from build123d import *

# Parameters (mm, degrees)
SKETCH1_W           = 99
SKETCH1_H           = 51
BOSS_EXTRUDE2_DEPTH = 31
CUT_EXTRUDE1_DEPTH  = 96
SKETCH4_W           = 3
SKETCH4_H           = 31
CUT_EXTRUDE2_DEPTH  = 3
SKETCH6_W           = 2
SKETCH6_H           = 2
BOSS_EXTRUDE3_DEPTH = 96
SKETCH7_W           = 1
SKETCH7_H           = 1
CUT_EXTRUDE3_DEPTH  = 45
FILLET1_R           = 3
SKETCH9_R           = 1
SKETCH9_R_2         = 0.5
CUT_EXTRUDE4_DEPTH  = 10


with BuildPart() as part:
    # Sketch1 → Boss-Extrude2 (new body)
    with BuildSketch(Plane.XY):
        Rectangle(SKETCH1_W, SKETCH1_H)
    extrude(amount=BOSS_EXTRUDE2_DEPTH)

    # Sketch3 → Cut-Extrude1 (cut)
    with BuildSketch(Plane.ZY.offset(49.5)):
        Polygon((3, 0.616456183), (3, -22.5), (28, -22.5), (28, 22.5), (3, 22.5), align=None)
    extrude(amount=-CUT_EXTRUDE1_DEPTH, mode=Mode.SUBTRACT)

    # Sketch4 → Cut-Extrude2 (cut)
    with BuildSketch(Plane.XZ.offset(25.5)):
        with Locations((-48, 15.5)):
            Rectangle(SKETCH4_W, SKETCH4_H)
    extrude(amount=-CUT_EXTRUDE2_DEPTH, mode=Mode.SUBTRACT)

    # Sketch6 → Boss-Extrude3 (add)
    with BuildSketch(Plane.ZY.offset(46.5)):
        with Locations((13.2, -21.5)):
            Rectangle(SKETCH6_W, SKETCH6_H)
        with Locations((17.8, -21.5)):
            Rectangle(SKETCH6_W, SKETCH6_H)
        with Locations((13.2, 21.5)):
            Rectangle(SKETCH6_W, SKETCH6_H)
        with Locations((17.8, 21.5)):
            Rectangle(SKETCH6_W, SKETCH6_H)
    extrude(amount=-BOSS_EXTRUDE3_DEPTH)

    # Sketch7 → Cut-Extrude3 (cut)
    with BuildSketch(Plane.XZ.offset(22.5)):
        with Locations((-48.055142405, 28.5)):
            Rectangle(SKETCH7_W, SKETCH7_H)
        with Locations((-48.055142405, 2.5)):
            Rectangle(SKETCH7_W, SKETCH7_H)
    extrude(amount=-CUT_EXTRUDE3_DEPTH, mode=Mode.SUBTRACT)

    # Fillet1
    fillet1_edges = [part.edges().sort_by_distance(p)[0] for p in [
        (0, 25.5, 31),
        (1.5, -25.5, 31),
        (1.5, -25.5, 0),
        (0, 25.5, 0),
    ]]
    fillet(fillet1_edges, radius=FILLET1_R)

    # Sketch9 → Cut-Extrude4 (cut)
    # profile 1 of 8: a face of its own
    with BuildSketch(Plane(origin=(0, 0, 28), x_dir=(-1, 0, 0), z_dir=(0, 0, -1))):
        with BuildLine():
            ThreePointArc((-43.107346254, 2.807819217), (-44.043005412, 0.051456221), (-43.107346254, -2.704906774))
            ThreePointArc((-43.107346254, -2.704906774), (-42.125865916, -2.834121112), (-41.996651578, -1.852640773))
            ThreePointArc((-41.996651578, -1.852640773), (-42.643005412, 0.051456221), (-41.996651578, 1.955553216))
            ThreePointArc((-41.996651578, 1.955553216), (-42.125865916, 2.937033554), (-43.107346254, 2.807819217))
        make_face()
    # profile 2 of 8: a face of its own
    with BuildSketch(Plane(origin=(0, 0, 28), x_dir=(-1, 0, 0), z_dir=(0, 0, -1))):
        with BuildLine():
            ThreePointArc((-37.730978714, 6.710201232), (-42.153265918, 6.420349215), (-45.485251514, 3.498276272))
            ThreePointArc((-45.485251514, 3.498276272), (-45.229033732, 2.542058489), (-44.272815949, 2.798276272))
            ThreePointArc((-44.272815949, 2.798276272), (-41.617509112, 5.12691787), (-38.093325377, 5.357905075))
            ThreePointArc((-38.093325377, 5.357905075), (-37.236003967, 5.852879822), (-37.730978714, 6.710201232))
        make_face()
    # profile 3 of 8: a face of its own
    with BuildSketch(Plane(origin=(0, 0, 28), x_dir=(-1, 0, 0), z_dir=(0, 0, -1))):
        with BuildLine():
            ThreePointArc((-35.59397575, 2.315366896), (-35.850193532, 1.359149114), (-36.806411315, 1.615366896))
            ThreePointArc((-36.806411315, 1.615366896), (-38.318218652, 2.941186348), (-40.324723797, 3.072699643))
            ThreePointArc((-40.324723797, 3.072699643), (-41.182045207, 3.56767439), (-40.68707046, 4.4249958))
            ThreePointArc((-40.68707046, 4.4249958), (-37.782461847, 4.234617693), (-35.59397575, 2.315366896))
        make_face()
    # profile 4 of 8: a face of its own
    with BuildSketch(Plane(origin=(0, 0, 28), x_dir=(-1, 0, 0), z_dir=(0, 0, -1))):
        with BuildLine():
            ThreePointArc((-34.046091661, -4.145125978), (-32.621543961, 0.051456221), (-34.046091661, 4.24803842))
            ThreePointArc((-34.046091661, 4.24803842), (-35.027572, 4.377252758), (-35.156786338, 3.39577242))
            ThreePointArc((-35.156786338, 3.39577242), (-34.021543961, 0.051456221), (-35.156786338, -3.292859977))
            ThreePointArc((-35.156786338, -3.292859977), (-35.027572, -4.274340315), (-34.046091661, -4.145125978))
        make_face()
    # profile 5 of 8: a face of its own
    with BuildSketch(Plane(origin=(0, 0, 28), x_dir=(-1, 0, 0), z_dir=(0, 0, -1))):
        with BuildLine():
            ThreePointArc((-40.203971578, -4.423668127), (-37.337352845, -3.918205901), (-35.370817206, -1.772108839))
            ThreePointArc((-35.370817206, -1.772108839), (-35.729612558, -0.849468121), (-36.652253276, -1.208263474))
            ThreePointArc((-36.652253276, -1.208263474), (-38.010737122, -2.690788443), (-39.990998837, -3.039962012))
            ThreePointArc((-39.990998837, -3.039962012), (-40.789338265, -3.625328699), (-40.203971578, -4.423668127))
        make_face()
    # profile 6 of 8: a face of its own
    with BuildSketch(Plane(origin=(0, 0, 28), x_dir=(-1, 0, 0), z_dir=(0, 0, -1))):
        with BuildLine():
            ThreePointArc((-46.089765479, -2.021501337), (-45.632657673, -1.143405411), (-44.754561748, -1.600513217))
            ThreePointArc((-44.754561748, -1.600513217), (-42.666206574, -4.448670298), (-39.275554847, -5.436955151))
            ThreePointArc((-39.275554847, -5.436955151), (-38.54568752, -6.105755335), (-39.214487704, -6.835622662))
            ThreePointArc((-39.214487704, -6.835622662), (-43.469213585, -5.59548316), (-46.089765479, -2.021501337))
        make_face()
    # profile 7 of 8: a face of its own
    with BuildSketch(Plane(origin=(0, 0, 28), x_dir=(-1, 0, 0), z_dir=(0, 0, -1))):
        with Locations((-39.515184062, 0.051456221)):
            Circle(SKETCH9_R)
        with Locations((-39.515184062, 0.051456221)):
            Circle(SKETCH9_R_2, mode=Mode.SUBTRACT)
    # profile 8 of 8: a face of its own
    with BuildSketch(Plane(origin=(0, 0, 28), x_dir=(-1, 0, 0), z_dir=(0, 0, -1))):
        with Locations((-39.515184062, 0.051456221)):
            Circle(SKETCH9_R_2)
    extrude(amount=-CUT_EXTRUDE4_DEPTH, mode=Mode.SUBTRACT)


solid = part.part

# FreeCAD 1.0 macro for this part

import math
import FreeCAD as App
import Part
import Sketcher
from FreeCAD import Vector
Q = App.Units.Quantity


def edges_at(feature, points):
    """Names of the edges that pass closest to the given points."""
    edges = feature.Shape.Edges
    near = lambda p: min(range(len(edges)), key=lambda i: edges[i].distToShape(Part.Vertex(*p))[0])
    return sorted({f"Edge{near(p) + 1}" for p in points})

doc = App.newDocument("Part")
body = doc.addObject("PartDesign::Body", "Body")

# Sketch on XY plane
sketch1 = body.newObject("Sketcher::SketchObject", "Sketch")
sketch1.AttachmentSupport = (doc.getObject("XY_Plane"), [""])
sketch1.MapMode = "FlatFace"
sketch1.addGeometry([
    Part.LineSegment(Vector(-49.5, 25.5, 0), Vector(-49.5, -25.5, 0)),
    Part.LineSegment(Vector(-49.5, -25.5, 0), Vector(49.5, -25.5, 0)),
    Part.LineSegment(Vector(49.5, -25.5, 0), Vector(49.5, 25.5, 0)),
    Part.LineSegment(Vector(49.5, 25.5, 0), Vector(-49.5, 25.5, 0)),
], False)
sketch1.addConstraint([
    Sketcher.Constraint("Coincident", 0, 2, 1, 1),
    Sketcher.Constraint("Coincident", 1, 2, 2, 1),
    Sketcher.Constraint("Coincident", 2, 2, 3, 1),
    Sketcher.Constraint("Coincident", 3, 2, 0, 1),
    Sketcher.Constraint("Vertical", 0),
    Sketcher.Constraint("Horizontal", 1),
    Sketcher.Constraint("Vertical", 2),
    Sketcher.Constraint("Horizontal", 3),
    Sketcher.Constraint("Symmetric", 0, 2, 2, 2, -1, 1),
    Sketcher.Constraint("DistanceX", 1, 1, 1, 2, Q("99 mm")),
    Sketcher.Constraint("DistanceY", 0, 2, 0, 1, Q("51 mm")),
])
pad1 = body.newObject("PartDesign::Pad", "Pad")
pad1.Profile = sketch1
pad1.Length = 31

# Sketch on YZ plane
sketch2 = body.newObject("Sketcher::SketchObject", "Sketch001")
sketch2.AttachmentSupport = (doc.getObject("YZ_Plane"), [""])
sketch2.MapMode = "FlatFace"
sketch2.AttachmentOffset = App.Placement(Vector(0, 0, -49.5), App.Rotation())
sketch2.addGeometry([
    Part.LineSegment(Vector(-22.5, 3, 0), Vector(-22.5, 28, 0)),
    Part.LineSegment(Vector(-22.5, 28, 0), Vector(22.5, 28, 0)),
    Part.LineSegment(Vector(22.5, 28, 0), Vector(22.5, 3, 0)),
    Part.LineSegment(Vector(22.5, 3, 0), Vector(-22.5, 3, 0)),
], False)
sketch2.addConstraint([
    Sketcher.Constraint("Coincident", 0, 2, 1, 1),
    Sketcher.Constraint("Coincident", 1, 2, 2, 1),
    Sketcher.Constraint("Coincident", 2, 2, 3, 1),
    Sketcher.Constraint("Coincident", 3, 2, 0, 1),
    Sketcher.Constraint("Vertical", 0),
    Sketcher.Constraint("Horizontal", 1),
    Sketcher.Constraint("Vertical", 2),
    Sketcher.Constraint("Horizontal", 3),
    Sketcher.Constraint("DistanceX", 1, 1, 1, 2, Q("45 mm")),
    Sketcher.Constraint("DistanceY", 0, 1, 0, 2, Q("25 mm")),
    Sketcher.Constraint("DistanceY", -1, 1, 0, 2, Q("28 mm")),
    Sketcher.Constraint("DistanceX", 0, 2, -1, 1, Q("22.5 mm")),
])
pocket1 = body.newObject("PartDesign::Pocket", "Pocket")
pocket1.Profile = sketch2
pocket1.Length = 96
pocket1.Reversed = True

# Sketch on XZ plane
sketch3 = body.newObject("Sketcher::SketchObject", "Sketch002")
sketch3.AttachmentSupport = (doc.getObject("XZ_Plane"), [""])
sketch3.MapMode = "FlatFace"
sketch3.AttachmentOffset = App.Placement(Vector(0, 0, 25.5), App.Rotation())
sketch3.addGeometry([
    Part.LineSegment(Vector(-49.5, 31, 0), Vector(-49.5, 0, 0)),
    Part.LineSegment(Vector(-49.5, 0, 0), Vector(-46.5, 0, 0)),
    Part.LineSegment(Vector(-46.5, 0, 0), Vector(-46.5, 31, 0)),
    Part.LineSegment(Vector(-46.5, 31, 0), Vector(-49.5, 31, 0)),
], False)
sketch3.addConstraint([
    Sketcher.Constraint("Coincident", 0, 2, 1, 1),
    Sketcher.Constraint("Coincident", 1, 2, 2, 1),
    Sketcher.Constraint("Coincident", 2, 2, 3, 1),
    Sketcher.Constraint("Coincident", 3, 2, 0, 1),
    Sketcher.Constraint("Vertical", 0),
    Sketcher.Constraint("Horizontal", 1),
    Sketcher.Constraint("Vertical", 2),
    Sketcher.Constraint("Horizontal", 3),
    Sketcher.Constraint("PointOnObject", 0, 2, -1),
    Sketcher.Constraint("DistanceX", 1, 1, 1, 2, Q("3 mm")),
    Sketcher.Constraint("DistanceY", 0, 2, 0, 1, Q("31 mm")),
    Sketcher.Constraint("DistanceX", 0, 2, -1, 1, Q("49.5 mm")),
])
pocket2 = body.newObject("PartDesign::Pocket", "Pocket001")
pocket2.Profile = sketch3
pocket2.Length = 3

# Sketch on YZ plane
sketch4 = body.newObject("Sketcher::SketchObject", "Sketch003")
sketch4.AttachmentSupport = (doc.getObject("YZ_Plane"), [""])
sketch4.MapMode = "FlatFace"
sketch4.AttachmentOffset = App.Placement(Vector(0, 0, -46.5), App.Rotation())
sketch4.addGeometry([
    Part.LineSegment(Vector(-20.5, 12.2, 0), Vector(-22.5, 12.2, 0)),  # 0
    Part.LineSegment(Vector(-22.5, 12.2, 0), Vector(-22.5, 14.2, 0)),  # 1
    Part.LineSegment(Vector(-22.5, 14.2, 0), Vector(-20.5, 14.2, 0)),  # 2
    Part.LineSegment(Vector(-20.5, 14.2, 0), Vector(-20.5, 12.2, 0)),  # 3
    Part.LineSegment(Vector(-20.5, 16.8, 0), Vector(-22.5, 16.8, 0)),  # 4
    Part.LineSegment(Vector(-22.5, 16.8, 0), Vector(-22.5, 18.8, 0)),  # 5
    Part.LineSegment(Vector(-22.5, 18.8, 0), Vector(-20.5, 18.8, 0)),  # 6
    Part.LineSegment(Vector(-20.5, 18.8, 0), Vector(-20.5, 16.8, 0)),  # 7
    Part.LineSegment(Vector(22.5, 12.2, 0), Vector(20.5, 12.2, 0)),  # 8
    Part.LineSegment(Vector(20.5, 12.2, 0), Vector(20.5, 14.2, 0)),  # 9
    Part.LineSegment(Vector(20.5, 14.2, 0), Vector(22.5, 14.2, 0)),  # 10
    Part.LineSegment(Vector(22.5, 14.2, 0), Vector(22.5, 12.2, 0)),  # 11
    Part.LineSegment(Vector(22.5, 16.8, 0), Vector(20.5, 16.8, 0)),  # 12
    Part.LineSegment(Vector(20.5, 16.8, 0), Vector(20.5, 18.8, 0)),  # 13
    Part.LineSegment(Vector(20.5, 18.8, 0), Vector(22.5, 18.8, 0)),  # 14
    Part.LineSegment(Vector(22.5, 18.8, 0), Vector(22.5, 16.8, 0)),  # 15
], False)
sketch4.addConstraint([
    Sketcher.Constraint("Coincident", 0, 2, 1, 1),
    Sketcher.Constraint("Coincident", 1, 2, 2, 1),
    Sketcher.Constraint("Coincident", 2, 2, 3, 1),
    Sketcher.Constraint("Coincident", 3, 2, 0, 1),
    Sketcher.Constraint("Coincident", 4, 2, 5, 1),
    Sketcher.Constraint("Coincident", 5, 2, 6, 1),
    Sketcher.Constraint("Coincident", 6, 2, 7, 1),
    Sketcher.Constraint("Coincident", 7, 2, 4, 1),
    Sketcher.Constraint("Coincident", 8, 2, 9, 1),
    Sketcher.Constraint("Coincident", 9, 2, 10, 1),
    Sketcher.Constraint("Coincident", 10, 2, 11, 1),
    Sketcher.Constraint("Coincident", 11, 2, 8, 1),
    Sketcher.Constraint("Coincident", 12, 2, 13, 1),
    Sketcher.Constraint("Coincident", 13, 2, 14, 1),
    Sketcher.Constraint("Coincident", 14, 2, 15, 1),
    Sketcher.Constraint("Coincident", 15, 2, 12, 1),
    Sketcher.Constraint("Horizontal", 0),
    Sketcher.Constraint("Vertical", 1),
    Sketcher.Constraint("Horizontal", 2),
    Sketcher.Constraint("Vertical", 3),
    Sketcher.Constraint("Horizontal", 4),
    Sketcher.Constraint("Vertical", 5),
    Sketcher.Constraint("Horizontal", 6),
    Sketcher.Constraint("Vertical", 7),
    Sketcher.Constraint("Horizontal", 8),
    Sketcher.Constraint("Vertical", 9),
    Sketcher.Constraint("Horizontal", 10),
    Sketcher.Constraint("Vertical", 11),
    Sketcher.Constraint("Horizontal", 12),
    Sketcher.Constraint("Vertical", 13),
    Sketcher.Constraint("Horizontal", 14),
    Sketcher.Constraint("Vertical", 15),
    Sketcher.Constraint("Symmetric", 3, 2, 8, 2, -2),
    Sketcher.Constraint("Symmetric", 1, 2, 10, 2, -2),
    Sketcher.Constraint("Symmetric", 7, 2, 12, 2, -2),
    Sketcher.Constraint("Symmetric", 5, 2, 14, 2, -2),
    Sketcher.Constraint("Vertical", 1, 2, 4, 2),
    Sketcher.Constraint("Vertical", 3, 2, 6, 2),
    Sketcher.Constraint("Equal", 14, 1),
    Sketcher.Constraint("Equal", 3, 5),
    Sketcher.Constraint("DistanceX", 0, 2, 0, 1, Q("2 mm")),
    Sketcher.Constraint("DistanceX", 3, 2, 8, 2, Q("41 mm")),
    Sketcher.Constraint("DistanceY", -1, 1, 0, 2, Q("12.2 mm")),
    Sketcher.Constraint("DistanceY", -1, 1, 4, 2, Q("16.8 mm")),
])
pad2 = body.newObject("PartDesign::Pad", "Pad001")
pad2.Profile = sketch4
pad2.Length = 96

# Sketch on XZ plane
sketch5 = body.newObject("Sketcher::SketchObject", "Sketch004")
sketch5.AttachmentSupport = (doc.getObject("XZ_Plane"), [""])
sketch5.MapMode = "FlatFace"
sketch5.AttachmentOffset = App.Placement(Vector(0, 0, 22.5), App.Rotation())
sketch5.addGeometry([
    Part.LineSegment(Vector(-48.555142, 29, 0), Vector(-48.555142, 28, 0)),  # 0
    Part.LineSegment(Vector(-48.555142, 28, 0), Vector(-47.555142, 28, 0)),  # 1
    Part.LineSegment(Vector(-47.555142, 28, 0), Vector(-47.555142, 29, 0)),  # 2
    Part.LineSegment(Vector(-47.555142, 29, 0), Vector(-48.555142, 29, 0)),  # 3
    Part.LineSegment(Vector(-48.555142, 3, 0), Vector(-48.555142, 2, 0)),  # 4
    Part.LineSegment(Vector(-48.555142, 2, 0), Vector(-47.555142, 2, 0)),  # 5
    Part.LineSegment(Vector(-47.555142, 2, 0), Vector(-47.555142, 3, 0)),  # 6
    Part.LineSegment(Vector(-47.555142, 3, 0), Vector(-48.555142, 3, 0)),  # 7
], False)
sketch5.addConstraint([
    Sketcher.Constraint("Coincident", 0, 2, 1, 1),
    Sketcher.Constraint("Coincident", 1, 2, 2, 1),
    Sketcher.Constraint("Coincident", 2, 2, 3, 1),
    Sketcher.Constraint("Coincident", 3, 2, 0, 1),
    Sketcher.Constraint("Coincident", 4, 2, 5, 1),
    Sketcher.Constraint("Coincident", 5, 2, 6, 1),
    Sketcher.Constraint("Coincident", 6, 2, 7, 1),
    Sketcher.Constraint("Coincident", 7, 2, 4, 1),
    Sketcher.Constraint("Vertical", 0),
    Sketcher.Constraint("Horizontal", 1),
    Sketcher.Constraint("Vertical", 2),
    Sketcher.Constraint("Horizontal", 3),
    Sketcher.Constraint("Vertical", 4),
    Sketcher.Constraint("Horizontal", 5),
    Sketcher.Constraint("Vertical", 6),
    Sketcher.Constraint("Horizontal", 7),
    Sketcher.Constraint("Vertical", 3, 2, 4, 2),
    Sketcher.Constraint("Vertical", 2, 2, 5, 2),
    Sketcher.Constraint("Equal", 7, 0),
    Sketcher.Constraint("Equal", 2, 4),
    Sketcher.Constraint("DistanceX", 1, 1, 1, 2, Q("1 mm")),
    Sketcher.Constraint("DistanceY", -1, 1, 0, 2, Q("28 mm")),
    Sketcher.Constraint("DistanceY", -1, 1, 4, 2, Q("2 mm")),
    Sketcher.Constraint("DistanceX", 0, 2, -1, 1, Q("48.555142 mm")),
])
pocket3 = body.newObject("PartDesign::Pocket", "Pocket002")
pocket3.Profile = sketch5
pocket3.Length = 45
doc.recompute()

fillet = body.newObject("PartDesign::Fillet", "Fillet")
fillet.Base = (pocket3, edges_at(pocket3, [
    (0, 25.5, 31),
    (1.5, -25.5, 31),
    (1.5, -25.5, 0),
    (0, 25.5, 0),
]))
fillet.Radius = 3

# Sketch on XY plane
sketch6 = body.newObject("Sketcher::SketchObject", "Sketch005")
sketch6.AttachmentSupport = (doc.getObject("XY_Plane"), [""])
sketch6.MapMode = "FlatFace"
sketch6.AttachmentOffset = App.Placement(Vector(0, 0, 28), App.Rotation())
sketch6.addGeometry([
    Part.ArcOfCircle(Part.Circle(Vector(39.515184, 0.051456, 0), Vector(0, 0, 1), 4.527821), math.radians(-37.5), math.radians(37.5)),  # 0
    Part.ArcOfCircle(Part.Circle(Vector(42.551999, -2.278774, 0), Vector(0, 0, 1), 0.7), math.radians(142.5), math.radians(322.5)),  # 1
    Part.ArcOfCircle(Part.Circle(Vector(39.515184, 0.051456, 0), Vector(0, 0, 1), 3.127821), math.radians(-37.5), math.radians(37.5)),  # 2
    Part.ArcOfCircle(Part.Circle(Vector(42.551999, 2.381686, 0), Vector(0, 0, 1), 0.7), math.radians(37.5), math.radians(217.5)),  # 3
    Part.ArcOfCircle(Part.Circle(Vector(39.515184, 0.051456, 0), Vector(0, 0, 1), 6.89364), math.radians(30), math.radians(105)),  # 4
    Part.ArcOfCircle(Part.Circle(Vector(44.879034, 3.148276, 0), Vector(0, 0, 1), 0.7), math.radians(-150), math.radians(30)),  # 5
    Part.ArcOfCircle(Part.Circle(Vector(39.515184, 0.051456, 0), Vector(0, 0, 1), 5.49364), math.radians(30), math.radians(105)),  # 6
    Part.ArcOfCircle(Part.Circle(Vector(37.912152, 6.034053, 0), Vector(0, 0, 1), 0.7), math.radians(105), math.radians(285)),  # 7
    Part.ArcOfCircle(Part.Circle(Vector(36.200194, 1.965367, 0), Vector(0, 0, 1), 0.7), math.radians(150), math.radians(330)),  # 8
    Part.ArcOfCircle(Part.Circle(Vector(39.515184, 0.051456, 0), Vector(0, 0, 1), 4.527821), math.radians(75), math.radians(150)),  # 9
    Part.ArcOfCircle(Part.Circle(Vector(40.505897, 3.748848, 0), Vector(0, 0, 1), 0.7), math.radians(-105), math.radians(75)),  # 10
    Part.ArcOfCircle(Part.Circle(Vector(39.515184, 0.051456, 0), Vector(0, 0, 1), 3.127821), math.radians(75), math.radians(150)),  # 11
    Part.ArcOfCircle(Part.Circle(Vector(39.515184, 0.051456, 0), Vector(0, 0, 1), 6.89364), math.radians(142.5), math.radians(217.5)),  # 12
    Part.ArcOfCircle(Part.Circle(Vector(34.601439, 3.821905, 0), Vector(0, 0, 1), 0.7), math.radians(-37.5), math.radians(142.5)),  # 13
    Part.ArcOfCircle(Part.Circle(Vector(39.515184, 0.051456, 0), Vector(0, 0, 1), 5.49364), math.radians(142.5), math.radians(217.5)),  # 14
    Part.ArcOfCircle(Part.Circle(Vector(34.601439, -3.718993, 0), Vector(0, 0, 1), 0.7), math.radians(-142.5), math.radians(37.5)),  # 15
    Part.ArcOfCircle(Part.Circle(Vector(39.515184, 0.051456, 0), Vector(0, 0, 1), 4.527821), math.radians(-156.25), math.radians(-81.25)),  # 16
    Part.ArcOfCircle(Part.Circle(Vector(36.011535, -1.490186, 0), Vector(0, 0, 1), 0.7), math.radians(23.75), math.radians(203.75)),  # 17
    Part.ArcOfCircle(Part.Circle(Vector(39.515184, 0.051456, 0), Vector(0, 0, 1), 3.127821), math.radians(-156.25), math.radians(-81.25)),  # 18
    Part.ArcOfCircle(Part.Circle(Vector(40.097485, -3.731815, 0), Vector(0, 0, 1), 0.7), math.radians(-81.25), math.radians(98.75)),  # 19
    Part.ArcOfCircle(Part.Circle(Vector(45.422164, -1.811007, 0), Vector(0, 0, 1), 0.7), math.radians(-17.5), math.radians(162.5)),  # 20
    Part.ArcOfCircle(Part.Circle(Vector(39.515184, 0.051456, 0), Vector(0, 0, 1), 6.89364), math.radians(-92.5), math.radians(-17.5)),  # 21
    Part.ArcOfCircle(Part.Circle(Vector(39.245021, -6.136289, 0), Vector(0, 0, 1), 0.7), math.radians(87.5), math.radians(267.5)),  # 22
    Part.ArcOfCircle(Part.Circle(Vector(39.515184, 0.051456, 0), Vector(0, 0, 1), 5.49364), math.radians(-92.5), math.radians(-17.5)),  # 23
    Part.Circle(Vector(39.515184, 0.051456, 0), Vector(0, 0, 1), 1),  # 24
], False)
sketch6.addConstraint([
    Sketcher.Constraint("Tangent", 0, 1, 1, 2),
    Sketcher.Constraint("Tangent", 1, 1, 2, 1),
    Sketcher.Constraint("Tangent", 2, 2, 3, 2),
    Sketcher.Constraint("Tangent", 3, 1, 0, 2),
    Sketcher.Constraint("Tangent", 4, 1, 5, 2),
    Sketcher.Constraint("Tangent", 5, 1, 6, 1),
    Sketcher.Constraint("Tangent", 6, 2, 7, 2),
    Sketcher.Constraint("Tangent", 7, 1, 4, 2),
    Sketcher.Constraint("Tangent", 8, 1, 9, 2),
    Sketcher.Constraint("Tangent", 9, 1, 10, 2),
    Sketcher.Constraint("Tangent", 10, 1, 11, 1),
    Sketcher.Constraint("Tangent", 11, 2, 8, 2),
    Sketcher.Constraint("Tangent", 12, 1, 13, 2),
    Sketcher.Constraint("Tangent", 13, 1, 14, 1),
    Sketcher.Constraint("Tangent", 14, 2, 15, 2),
    Sketcher.Constraint("Tangent", 15, 1, 12, 2),
    Sketcher.Constraint("Tangent", 16, 1, 17, 2),
    Sketcher.Constraint("Tangent", 17, 1, 18, 1),
    Sketcher.Constraint("Tangent", 18, 2, 19, 2),
    Sketcher.Constraint("Tangent", 19, 1, 16, 2),
    Sketcher.Constraint("Tangent", 20, 1, 21, 2),
    Sketcher.Constraint("Tangent", 21, 1, 22, 2),
    Sketcher.Constraint("Tangent", 22, 1, 23, 1),
    Sketcher.Constraint("Tangent", 23, 2, 20, 2),
    Sketcher.Constraint("Coincident", 2, 3, 0, 3),
    Sketcher.Constraint("Coincident", 4, 3, 0, 3),
    Sketcher.Constraint("Coincident", 6, 3, 0, 3),
    Sketcher.Constraint("Coincident", 9, 3, 0, 3),
    Sketcher.Constraint("Coincident", 11, 3, 0, 3),
    Sketcher.Constraint("Coincident", 12, 3, 0, 3),
    Sketcher.Constraint("Coincident", 14, 3, 0, 3),
    Sketcher.Constraint("Coincident", 16, 3, 0, 3),
    Sketcher.Constraint("Coincident", 18, 3, 0, 3),
    Sketcher.Constraint("Coincident", 21, 3, 0, 3),
    Sketcher.Constraint("Coincident", 23, 3, 0, 3),
    Sketcher.Constraint("Coincident", 24, 3, 0, 3),
    Sketcher.Constraint("Equal", 3, 5),
    Sketcher.Constraint("Equal", 7, 8),
    Sketcher.Constraint("Equal", 0, 9),
    Sketcher.Constraint("Equal", 4, 12),
    Sketcher.Constraint("Equal", 10, 13),
    Sketcher.Constraint("Equal", 9, 16),
    Sketcher.Constraint("Equal", 15, 17),
    Sketcher.Constraint("Equal", 19, 20),
    Sketcher.Constraint("Equal", 12, 21),
    Sketcher.Constraint("Vertical", 1, 3, 3, 3),
    Sketcher.Constraint("Vertical", 13, 3, 15, 3),
    Sketcher.Constraint("Diameter", 24, Q("2 mm")),
    Sketcher.Constraint("Radius", 1, Q("0.7 mm")),
    Sketcher.Constraint("DistanceY", 5, 1, 4, 1, Q("0.7 mm")),
    Sketcher.Constraint("DistanceY", 11, 2, 8, 1, Q("0.7 mm")),
    Sketcher.Constraint("Radius", 0, Q("4.527821 mm")),
    Sketcher.Constraint("Radius", 4, Q("6.89364 mm")),
    Sketcher.Constraint("DistanceX", -1, 1, 1, 3, Q("42.551999 mm")),
    Sketcher.Constraint("DistanceX", -1, 1, 18, 2, Q("39.990999 mm")),
    Sketcher.Constraint("DistanceY", 13, 3, 6, 2, Q("1.536 mm")),
    Sketcher.Constraint("DistanceY", -1, 1, 7, 1, Q("6.710201 mm")),
    Sketcher.Constraint("DistanceY", -1, 1, 10, 1, Q("3.0727 mm")),
    Sketcher.Constraint("DistanceY", 20, 1, -1, 1, Q("2.021501 mm")),
    Sketcher.Constraint("DistanceX", 10, 3, 3, 3, Q("2.046102 mm")),
    Sketcher.Constraint("DistanceX", 16, 3, 19, 3, Q("0.582301 mm")),
    Sketcher.Constraint("DistanceX", 14, 2, 21, 1, Q("4.057701 mm")),
    Sketcher.Constraint("DistanceY", 16, 1, -1, 1, Q("1.772109 mm")),
])
pocket4 = body.newObject("PartDesign::Pocket", "Pocket003")
pocket4.Profile = sketch6
pocket4.Length = 10
pocket4.Reversed = True

doc.recompute()
